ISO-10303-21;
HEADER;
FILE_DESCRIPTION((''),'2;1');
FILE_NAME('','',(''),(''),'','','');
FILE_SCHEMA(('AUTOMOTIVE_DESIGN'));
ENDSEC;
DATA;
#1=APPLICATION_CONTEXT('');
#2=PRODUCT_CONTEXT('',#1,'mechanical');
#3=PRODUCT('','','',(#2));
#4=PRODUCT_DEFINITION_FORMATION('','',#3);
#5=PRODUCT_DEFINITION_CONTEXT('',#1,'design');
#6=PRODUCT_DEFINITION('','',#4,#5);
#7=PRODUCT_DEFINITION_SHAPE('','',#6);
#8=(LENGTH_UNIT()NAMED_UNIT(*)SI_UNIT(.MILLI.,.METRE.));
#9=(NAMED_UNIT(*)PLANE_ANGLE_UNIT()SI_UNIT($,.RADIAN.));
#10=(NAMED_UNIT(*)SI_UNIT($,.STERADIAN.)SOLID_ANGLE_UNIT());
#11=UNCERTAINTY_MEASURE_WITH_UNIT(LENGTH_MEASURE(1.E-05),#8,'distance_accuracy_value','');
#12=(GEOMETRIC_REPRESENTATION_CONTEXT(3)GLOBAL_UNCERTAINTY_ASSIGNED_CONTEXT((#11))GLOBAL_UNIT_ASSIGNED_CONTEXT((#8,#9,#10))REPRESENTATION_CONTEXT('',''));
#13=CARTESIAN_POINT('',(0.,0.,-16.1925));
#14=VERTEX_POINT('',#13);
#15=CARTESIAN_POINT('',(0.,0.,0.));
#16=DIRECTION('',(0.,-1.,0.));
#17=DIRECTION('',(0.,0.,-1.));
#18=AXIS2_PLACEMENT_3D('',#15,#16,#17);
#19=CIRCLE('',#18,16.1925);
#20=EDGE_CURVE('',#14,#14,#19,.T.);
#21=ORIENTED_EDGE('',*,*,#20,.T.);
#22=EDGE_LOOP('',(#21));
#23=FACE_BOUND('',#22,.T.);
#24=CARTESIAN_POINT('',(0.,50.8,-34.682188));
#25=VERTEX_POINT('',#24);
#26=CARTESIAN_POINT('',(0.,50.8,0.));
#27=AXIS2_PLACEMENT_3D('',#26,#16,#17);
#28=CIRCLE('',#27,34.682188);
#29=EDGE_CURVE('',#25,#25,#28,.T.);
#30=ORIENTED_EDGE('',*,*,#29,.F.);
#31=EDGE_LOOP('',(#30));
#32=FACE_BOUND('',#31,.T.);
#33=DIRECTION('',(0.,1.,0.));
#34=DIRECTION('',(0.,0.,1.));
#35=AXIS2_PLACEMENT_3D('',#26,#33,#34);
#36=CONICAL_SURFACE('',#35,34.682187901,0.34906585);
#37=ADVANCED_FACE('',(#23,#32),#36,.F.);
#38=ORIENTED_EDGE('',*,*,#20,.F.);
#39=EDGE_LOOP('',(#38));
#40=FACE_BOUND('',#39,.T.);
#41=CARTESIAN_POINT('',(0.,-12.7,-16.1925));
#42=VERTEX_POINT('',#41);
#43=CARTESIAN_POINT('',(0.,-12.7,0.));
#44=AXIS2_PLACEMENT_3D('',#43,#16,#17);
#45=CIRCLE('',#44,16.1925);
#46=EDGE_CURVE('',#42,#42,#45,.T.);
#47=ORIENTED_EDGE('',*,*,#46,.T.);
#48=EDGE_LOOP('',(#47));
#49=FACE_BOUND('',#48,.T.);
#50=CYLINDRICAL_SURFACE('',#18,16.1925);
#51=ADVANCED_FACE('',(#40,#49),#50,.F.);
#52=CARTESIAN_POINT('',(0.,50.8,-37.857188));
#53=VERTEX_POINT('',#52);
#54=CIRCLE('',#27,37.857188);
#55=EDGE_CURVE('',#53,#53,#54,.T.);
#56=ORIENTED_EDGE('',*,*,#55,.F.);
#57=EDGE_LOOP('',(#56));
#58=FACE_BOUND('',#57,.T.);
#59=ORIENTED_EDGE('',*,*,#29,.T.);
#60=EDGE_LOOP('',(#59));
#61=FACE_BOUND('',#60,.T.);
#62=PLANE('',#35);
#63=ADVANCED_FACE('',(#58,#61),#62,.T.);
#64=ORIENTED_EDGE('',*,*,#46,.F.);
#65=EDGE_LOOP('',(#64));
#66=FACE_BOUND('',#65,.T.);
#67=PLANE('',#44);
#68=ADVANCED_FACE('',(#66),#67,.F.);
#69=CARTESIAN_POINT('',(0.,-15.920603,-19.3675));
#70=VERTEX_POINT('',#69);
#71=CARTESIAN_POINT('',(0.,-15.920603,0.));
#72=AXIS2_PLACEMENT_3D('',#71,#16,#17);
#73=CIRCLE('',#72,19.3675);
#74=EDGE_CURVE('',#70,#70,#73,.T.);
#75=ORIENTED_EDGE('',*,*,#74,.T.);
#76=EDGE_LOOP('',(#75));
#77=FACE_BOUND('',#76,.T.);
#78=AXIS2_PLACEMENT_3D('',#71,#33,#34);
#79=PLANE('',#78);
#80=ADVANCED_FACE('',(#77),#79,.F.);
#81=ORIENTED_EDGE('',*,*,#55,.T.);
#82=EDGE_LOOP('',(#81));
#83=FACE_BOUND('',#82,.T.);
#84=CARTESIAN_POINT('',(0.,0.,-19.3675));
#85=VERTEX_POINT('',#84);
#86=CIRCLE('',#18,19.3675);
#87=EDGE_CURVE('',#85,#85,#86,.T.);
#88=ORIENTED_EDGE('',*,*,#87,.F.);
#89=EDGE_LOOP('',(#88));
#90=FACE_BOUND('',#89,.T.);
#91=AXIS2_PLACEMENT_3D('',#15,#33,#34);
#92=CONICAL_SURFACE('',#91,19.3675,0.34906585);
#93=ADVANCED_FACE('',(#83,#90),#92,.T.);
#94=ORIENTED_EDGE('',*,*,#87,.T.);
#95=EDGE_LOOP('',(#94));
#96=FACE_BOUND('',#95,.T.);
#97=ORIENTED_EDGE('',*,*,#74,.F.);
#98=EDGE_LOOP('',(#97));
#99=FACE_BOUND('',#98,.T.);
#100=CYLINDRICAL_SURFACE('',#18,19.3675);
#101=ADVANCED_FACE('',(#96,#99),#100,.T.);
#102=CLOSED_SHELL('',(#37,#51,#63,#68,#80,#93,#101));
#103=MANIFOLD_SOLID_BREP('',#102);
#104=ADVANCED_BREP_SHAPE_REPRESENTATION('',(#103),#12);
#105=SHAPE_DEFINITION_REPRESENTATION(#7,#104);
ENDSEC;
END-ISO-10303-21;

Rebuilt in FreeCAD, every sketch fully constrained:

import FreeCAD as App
import Part
import Sketcher

V = App.Vector
Q = App.Units.Quantity


def add_polygon(sketch, points):
    """Adds a closed chain of lines whose ends are joined by coincident constraints."""
    first, n = sketch.GeometryCount, len(points)
    for a, b in zip(points, points[1:] + points[:1]):
        sketch.addGeometry(Part.LineSegment(App.Vector(*a, 0), App.Vector(*b, 0)), False)
    for i in range(n):
        sketch.addConstraint(Sketcher.Constraint("Coincident", first + i, 2, first + (i + 1) % n, 1))

doc = App.newDocument("Part")
params = doc.addObject("Spreadsheet::Sheet", "Params")
for row, (alias, value) in enumerate([
    ("sketch1_height", "0.5 in"),
    ("sketch1_width", "0.125 in"),
    ("revolution_angle", "360 deg"),
], start=1):
    params.set(f"A{row}", alias)
    params.set(f"B{row}", "=" + value)
    params.setAlias(f"B{row}", alias)

body = doc.addObject("PartDesign::Body", "Body")

# Sketch on XY plane
sketch1 = body.newObject("Sketcher::SketchObject", "Sketch")
sketch1.AttachmentSupport = (doc.getObject("XY_Plane"), [""])
sketch1.MapMode = "FlatFace"
add_polygon(sketch1, [(19.4, 0), (37.9, 50.8), (34.7, 50.8), (16.2, 0), (16.2, -12.7), (0, -12.7), (0, -15.9), (19.4, -15.9)])  # lines 0-7
sketch1.addConstraint([
    Sketcher.Constraint("Horizontal", 1),
    Sketcher.Constraint("Vertical", 3),
    Sketcher.Constraint("Horizontal", 4),
    Sketcher.Constraint("Vertical", 5),
    Sketcher.Constraint("Horizontal", 6),
    Sketcher.Constraint("Vertical", 7),
    Sketcher.Constraint("PointOnObject", 2, 2, -1),
    Sketcher.Constraint("PointOnObject", 4, 2, -2),
    Sketcher.Constraint("PointOnObject", 7, 2, -1),
    Sketcher.Constraint("Parallel", 0, 2),
    Sketcher.Constraint("DistanceY", 3, 2, 3, 1, Q("0.5 in")),
    Sketcher.Constraint("DistanceY", -1, 1, 0, 2, Q("2 in")),
    Sketcher.Constraint("Angle", 0, Q("70 deg")),
    Sketcher.Constraint("DistanceX", 1, 2, 1, 1, Q("0.125 in")),
    Sketcher.Constraint("DistanceX", 4, 2, 4, 1, Q("0.6375 in")),
    Sketcher.Constraint("DistanceY", 5, 2, 5, 1, 3.220603),
])
sketch1.setExpression("Constraints[18]", "Params.sketch1_height")
sketch1.setExpression("Constraints[21]", "Params.sketch1_width")
revolution = body.newObject("PartDesign::Revolution", "Revolution")
revolution.Profile = sketch1
revolution.ReferenceAxis = (sketch1, ["V_Axis"])
revolution.setExpression("Angle", "Params.revolution_angle")

doc.recompute()
